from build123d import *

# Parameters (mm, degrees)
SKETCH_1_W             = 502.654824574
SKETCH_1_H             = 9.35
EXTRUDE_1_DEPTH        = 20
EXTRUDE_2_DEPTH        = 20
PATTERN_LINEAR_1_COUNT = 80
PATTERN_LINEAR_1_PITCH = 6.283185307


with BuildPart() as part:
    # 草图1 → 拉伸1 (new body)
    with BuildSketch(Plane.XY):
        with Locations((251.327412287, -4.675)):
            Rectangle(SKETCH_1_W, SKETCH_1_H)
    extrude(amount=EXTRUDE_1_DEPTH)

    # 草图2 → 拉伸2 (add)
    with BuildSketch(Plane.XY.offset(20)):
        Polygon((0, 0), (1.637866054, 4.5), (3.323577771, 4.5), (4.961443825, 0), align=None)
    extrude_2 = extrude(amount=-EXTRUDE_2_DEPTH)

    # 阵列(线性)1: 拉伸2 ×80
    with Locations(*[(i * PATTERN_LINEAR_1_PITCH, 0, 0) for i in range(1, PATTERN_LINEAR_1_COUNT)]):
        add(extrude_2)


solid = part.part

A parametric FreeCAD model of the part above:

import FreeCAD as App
import Part
import Sketcher

V = App.Vector
Q = App.Units.Quantity


def add_polygon(sketch, points):
    """Adds a closed chain of lines whose ends are joined by coincident constraints."""
    first, n = sketch.GeometryCount, len(points)
    for a, b in zip(points, points[1:] + points[:1]):
        sketch.addGeometry(Part.LineSegment(App.Vector(*a, 0), App.Vector(*b, 0)), False)
    for i in range(n):
        sketch.addConstraint(Sketcher.Constraint("Coincident", first + i, 2, first + (i + 1) % n, 1))

doc = App.newDocument("Part")
body = doc.addObject("PartDesign::Body", "Body")

# Sketch on XY plane
sketch1 = doc.addObject("Sketcher::SketchObject", "Sketch")
body.addObject(sketch1)
sketch1.AttachmentSupport = (doc.XY_Plane, [""])
sketch1.MapMode = "FlatFace"
add_polygon(sketch1, [(0, 0), (0, -9), (503, -9), (503, 0)])  # lines 0-3
sketch1.addConstraint([
    Sketcher.Constraint("Vertical", 0),
    Sketcher.Constraint("Horizontal", 1),
    Sketcher.Constraint("Vertical", 2),
    Sketcher.Constraint("Horizontal", 3),
    Sketcher.Constraint("Coincident", 3, 2, -1, 1),
    Sketcher.Constraint("DistanceY", 0, 2, 0, 1, 9.35),
    Sketcher.Constraint("DistanceX", 1, 1, 1, 2, 502.654825),
])
pad1 = doc.addObject("PartDesign::Pad", "Pad")
body.addObject(pad1)
pad1.Profile = sketch1
pad1.Length = 20

# Sketch on XY plane
sketch2 = doc.addObject("Sketcher::SketchObject", "Sketch001")
body.addObject(sketch2)
sketch2.AttachmentSupport = (doc.XY_Plane, [""])
sketch2.MapMode = "FlatFace"
sketch2.AttachmentOffset = App.Placement(V(0, 0, 20), App.Rotation())
add_polygon(sketch2, [(1.6, 4.5), (0, 0), (5, 0), (3.3, 4.5)])  # lines 0-3
sketch2.addConstraint([
    Sketcher.Constraint("Horizontal", 1),
    Sketcher.Constraint("Horizontal", 3),
    Sketcher.Constraint("Coincident", 0, 2, -1, 1),
    Sketcher.Constraint("Equal", 0, 2),
    Sketcher.Constraint("Angle", 0, Q("-110 deg")),
    Sketcher.Constraint("DistanceY", -1, 1, 2, 2, 4.5),
    Sketcher.Constraint("DistanceX", 3, 2, 3, 1, 1.685712),
])
pad2 = doc.addObject("PartDesign::Pad", "Pad001")
body.addObject(pad2)
pad2.Profile = sketch2
pad2.Length = 20
pad2.Reversed = True
doc.recompute()

linearpattern = doc.addObject("PartDesign::LinearPattern", "LinearPattern")
body.addObject(linearpattern)
linearpattern.Originals = [pad2]
linearpattern.Direction = (doc.X_Axis, [""])
linearpattern.Mode = "offset"
linearpattern.Offset = 6.283185
linearpattern.Occurrences = 80
body.Tip = linearpattern

doc.recompute()
